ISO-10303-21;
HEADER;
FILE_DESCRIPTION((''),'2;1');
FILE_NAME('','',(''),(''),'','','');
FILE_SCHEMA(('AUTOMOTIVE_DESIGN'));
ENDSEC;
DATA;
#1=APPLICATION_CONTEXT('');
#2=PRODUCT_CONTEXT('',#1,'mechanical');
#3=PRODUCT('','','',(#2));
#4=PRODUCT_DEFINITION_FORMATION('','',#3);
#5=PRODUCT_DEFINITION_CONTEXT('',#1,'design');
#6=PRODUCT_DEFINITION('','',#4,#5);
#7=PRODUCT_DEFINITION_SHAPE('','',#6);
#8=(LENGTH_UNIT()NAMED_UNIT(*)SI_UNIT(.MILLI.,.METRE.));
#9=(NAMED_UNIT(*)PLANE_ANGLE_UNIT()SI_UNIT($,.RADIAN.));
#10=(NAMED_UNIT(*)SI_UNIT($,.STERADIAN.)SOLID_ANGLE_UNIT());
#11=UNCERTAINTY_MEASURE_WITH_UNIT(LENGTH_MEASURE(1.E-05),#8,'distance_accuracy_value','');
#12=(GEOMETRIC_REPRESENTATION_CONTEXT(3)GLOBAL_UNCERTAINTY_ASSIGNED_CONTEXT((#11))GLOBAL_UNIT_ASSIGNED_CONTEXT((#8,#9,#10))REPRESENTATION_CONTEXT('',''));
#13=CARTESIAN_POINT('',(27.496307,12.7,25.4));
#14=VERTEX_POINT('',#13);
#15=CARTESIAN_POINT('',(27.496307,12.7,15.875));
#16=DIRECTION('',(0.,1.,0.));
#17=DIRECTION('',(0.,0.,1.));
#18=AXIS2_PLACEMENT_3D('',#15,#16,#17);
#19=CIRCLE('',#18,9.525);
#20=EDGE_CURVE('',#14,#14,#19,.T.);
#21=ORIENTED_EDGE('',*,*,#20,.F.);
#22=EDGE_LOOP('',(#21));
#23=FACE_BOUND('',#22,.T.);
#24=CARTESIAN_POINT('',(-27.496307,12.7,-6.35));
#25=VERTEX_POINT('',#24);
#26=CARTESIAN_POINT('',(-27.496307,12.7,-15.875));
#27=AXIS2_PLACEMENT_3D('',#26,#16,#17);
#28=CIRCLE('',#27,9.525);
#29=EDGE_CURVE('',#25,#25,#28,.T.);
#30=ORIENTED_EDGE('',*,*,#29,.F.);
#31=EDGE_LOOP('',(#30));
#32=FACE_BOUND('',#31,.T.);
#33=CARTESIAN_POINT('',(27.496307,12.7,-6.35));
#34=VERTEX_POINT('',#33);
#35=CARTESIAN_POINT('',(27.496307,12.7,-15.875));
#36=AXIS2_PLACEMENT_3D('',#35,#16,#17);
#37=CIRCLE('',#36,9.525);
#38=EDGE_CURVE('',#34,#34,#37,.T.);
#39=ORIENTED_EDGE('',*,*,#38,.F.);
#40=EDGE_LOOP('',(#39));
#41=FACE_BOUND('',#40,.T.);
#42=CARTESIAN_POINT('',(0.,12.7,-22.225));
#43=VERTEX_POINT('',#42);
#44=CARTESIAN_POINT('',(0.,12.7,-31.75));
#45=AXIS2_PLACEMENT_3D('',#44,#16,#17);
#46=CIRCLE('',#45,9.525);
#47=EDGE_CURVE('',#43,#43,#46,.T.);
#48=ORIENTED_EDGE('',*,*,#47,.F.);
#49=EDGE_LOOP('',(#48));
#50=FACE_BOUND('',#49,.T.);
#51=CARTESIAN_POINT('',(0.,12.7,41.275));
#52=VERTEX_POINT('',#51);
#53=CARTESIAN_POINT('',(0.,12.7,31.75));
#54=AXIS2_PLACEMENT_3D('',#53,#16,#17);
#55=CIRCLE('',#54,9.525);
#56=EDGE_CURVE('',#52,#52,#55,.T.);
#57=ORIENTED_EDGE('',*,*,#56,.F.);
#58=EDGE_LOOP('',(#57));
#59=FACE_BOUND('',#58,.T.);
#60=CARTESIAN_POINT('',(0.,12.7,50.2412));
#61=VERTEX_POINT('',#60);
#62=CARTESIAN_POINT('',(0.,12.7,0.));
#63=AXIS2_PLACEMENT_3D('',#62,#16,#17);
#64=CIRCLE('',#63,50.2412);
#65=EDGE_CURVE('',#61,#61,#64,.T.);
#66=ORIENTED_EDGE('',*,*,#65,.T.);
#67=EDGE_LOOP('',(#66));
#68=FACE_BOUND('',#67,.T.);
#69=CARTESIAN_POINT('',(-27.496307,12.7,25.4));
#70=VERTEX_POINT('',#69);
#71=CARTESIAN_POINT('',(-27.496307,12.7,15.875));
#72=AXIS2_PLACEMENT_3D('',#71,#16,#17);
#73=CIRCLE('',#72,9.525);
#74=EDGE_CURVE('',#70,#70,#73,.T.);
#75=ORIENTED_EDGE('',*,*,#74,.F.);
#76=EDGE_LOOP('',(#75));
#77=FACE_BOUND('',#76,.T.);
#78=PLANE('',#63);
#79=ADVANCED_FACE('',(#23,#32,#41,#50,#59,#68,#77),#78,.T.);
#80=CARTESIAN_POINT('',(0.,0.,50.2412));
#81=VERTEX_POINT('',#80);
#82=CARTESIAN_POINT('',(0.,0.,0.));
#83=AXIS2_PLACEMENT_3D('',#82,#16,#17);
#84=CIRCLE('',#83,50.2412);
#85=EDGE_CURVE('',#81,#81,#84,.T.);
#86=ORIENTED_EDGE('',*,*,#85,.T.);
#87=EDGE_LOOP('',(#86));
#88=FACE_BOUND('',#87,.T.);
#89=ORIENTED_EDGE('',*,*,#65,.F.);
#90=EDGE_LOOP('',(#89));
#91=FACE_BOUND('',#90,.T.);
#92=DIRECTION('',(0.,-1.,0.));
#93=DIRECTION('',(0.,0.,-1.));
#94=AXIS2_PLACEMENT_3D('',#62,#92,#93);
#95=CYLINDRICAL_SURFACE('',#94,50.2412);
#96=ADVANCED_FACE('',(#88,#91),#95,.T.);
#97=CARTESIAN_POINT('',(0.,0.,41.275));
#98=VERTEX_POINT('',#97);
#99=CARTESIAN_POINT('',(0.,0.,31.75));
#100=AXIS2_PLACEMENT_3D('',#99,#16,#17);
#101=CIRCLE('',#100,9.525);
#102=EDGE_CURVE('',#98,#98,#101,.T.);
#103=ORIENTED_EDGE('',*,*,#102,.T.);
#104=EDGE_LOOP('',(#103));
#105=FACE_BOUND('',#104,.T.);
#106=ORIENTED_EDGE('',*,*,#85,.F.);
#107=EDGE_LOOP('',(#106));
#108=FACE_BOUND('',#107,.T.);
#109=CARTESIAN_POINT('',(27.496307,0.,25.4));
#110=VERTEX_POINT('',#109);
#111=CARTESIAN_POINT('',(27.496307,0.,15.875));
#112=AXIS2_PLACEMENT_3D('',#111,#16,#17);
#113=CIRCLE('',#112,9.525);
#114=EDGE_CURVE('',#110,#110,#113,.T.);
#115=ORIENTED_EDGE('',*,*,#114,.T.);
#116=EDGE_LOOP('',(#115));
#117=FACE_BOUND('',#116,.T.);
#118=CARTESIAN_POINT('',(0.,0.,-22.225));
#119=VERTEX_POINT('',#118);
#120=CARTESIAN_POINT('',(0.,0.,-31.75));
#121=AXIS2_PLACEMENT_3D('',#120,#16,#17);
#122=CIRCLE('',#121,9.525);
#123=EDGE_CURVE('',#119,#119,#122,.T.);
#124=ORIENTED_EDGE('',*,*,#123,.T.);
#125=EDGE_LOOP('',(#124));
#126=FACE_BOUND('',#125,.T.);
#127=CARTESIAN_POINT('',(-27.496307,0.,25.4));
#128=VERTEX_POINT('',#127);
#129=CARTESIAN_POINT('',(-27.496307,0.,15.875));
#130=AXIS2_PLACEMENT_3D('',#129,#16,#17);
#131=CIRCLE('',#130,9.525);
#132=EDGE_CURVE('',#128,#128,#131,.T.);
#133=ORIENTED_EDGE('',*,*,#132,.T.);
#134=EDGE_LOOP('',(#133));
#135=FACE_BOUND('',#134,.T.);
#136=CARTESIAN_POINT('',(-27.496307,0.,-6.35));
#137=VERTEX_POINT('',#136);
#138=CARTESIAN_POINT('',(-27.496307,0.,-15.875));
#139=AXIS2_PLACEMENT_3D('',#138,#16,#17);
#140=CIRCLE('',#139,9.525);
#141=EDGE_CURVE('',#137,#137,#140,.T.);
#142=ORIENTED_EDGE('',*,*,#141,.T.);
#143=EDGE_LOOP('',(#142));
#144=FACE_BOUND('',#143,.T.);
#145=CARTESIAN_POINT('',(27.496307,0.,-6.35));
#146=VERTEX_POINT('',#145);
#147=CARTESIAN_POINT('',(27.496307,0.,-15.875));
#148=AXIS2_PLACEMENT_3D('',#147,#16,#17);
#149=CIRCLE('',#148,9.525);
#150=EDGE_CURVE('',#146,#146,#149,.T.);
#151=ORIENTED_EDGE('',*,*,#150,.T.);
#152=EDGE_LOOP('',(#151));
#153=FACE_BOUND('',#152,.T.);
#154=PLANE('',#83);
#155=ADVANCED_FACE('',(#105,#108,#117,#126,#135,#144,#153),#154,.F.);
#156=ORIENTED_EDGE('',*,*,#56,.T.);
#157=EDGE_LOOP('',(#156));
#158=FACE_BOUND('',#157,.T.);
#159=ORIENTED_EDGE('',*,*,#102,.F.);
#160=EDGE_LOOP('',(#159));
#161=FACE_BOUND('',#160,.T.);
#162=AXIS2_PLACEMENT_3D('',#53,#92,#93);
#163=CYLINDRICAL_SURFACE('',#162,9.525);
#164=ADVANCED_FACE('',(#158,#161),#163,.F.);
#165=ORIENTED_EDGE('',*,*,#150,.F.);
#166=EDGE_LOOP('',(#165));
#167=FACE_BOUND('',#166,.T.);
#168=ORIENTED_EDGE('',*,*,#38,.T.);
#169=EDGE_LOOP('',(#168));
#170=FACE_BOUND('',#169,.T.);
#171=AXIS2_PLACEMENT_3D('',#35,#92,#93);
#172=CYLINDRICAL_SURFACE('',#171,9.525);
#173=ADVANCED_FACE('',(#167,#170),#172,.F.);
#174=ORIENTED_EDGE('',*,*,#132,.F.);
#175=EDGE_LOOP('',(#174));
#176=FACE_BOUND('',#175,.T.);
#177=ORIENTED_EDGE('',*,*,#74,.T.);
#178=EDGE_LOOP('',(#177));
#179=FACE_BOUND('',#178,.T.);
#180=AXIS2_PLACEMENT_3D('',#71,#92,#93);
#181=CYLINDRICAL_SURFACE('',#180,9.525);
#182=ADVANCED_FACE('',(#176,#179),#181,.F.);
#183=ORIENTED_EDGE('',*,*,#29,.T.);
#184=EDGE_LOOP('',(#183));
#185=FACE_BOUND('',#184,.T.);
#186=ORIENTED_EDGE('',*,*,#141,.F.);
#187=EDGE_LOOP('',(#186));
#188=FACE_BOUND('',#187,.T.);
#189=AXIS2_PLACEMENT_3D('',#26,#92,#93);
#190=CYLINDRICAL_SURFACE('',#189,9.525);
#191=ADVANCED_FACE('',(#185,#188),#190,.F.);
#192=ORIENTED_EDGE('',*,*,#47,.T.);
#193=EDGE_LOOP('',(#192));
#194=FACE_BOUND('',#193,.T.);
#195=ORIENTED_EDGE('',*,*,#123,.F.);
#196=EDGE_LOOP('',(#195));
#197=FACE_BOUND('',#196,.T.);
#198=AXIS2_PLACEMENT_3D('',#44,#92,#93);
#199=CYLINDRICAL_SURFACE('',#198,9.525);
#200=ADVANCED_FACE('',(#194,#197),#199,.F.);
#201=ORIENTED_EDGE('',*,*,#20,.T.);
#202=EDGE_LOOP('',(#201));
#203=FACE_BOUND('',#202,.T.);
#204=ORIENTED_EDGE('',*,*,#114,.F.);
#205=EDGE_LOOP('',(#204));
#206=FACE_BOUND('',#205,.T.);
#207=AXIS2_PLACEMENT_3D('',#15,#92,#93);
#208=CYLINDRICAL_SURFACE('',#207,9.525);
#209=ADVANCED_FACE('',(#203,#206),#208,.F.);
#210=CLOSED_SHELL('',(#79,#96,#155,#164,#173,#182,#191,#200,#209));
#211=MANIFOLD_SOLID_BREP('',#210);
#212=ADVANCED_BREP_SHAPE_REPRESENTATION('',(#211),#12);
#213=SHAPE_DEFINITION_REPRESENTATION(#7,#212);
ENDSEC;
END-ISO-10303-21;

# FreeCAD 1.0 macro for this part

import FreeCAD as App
import Part
import Sketcher
from FreeCAD import Vector
Q = App.Units.Quantity

doc = App.newDocument("Part")
body = doc.addObject("PartDesign::Body", "Body")

sketch1 = body.newObject("Sketcher::SketchObject", "Sketch")
sketch1.AttachmentSupport = (doc.getObject("XZ_Plane"), [""])
sketch1.MapMode = "FlatFace"
sketch1.addGeometry([
    Part.Circle(Vector(0, 0, 0), Vector(0, 0, 1), 50.2412),
    Part.Circle(Vector(-27.496307, 15.875, 0), Vector(0, 0, 1), 9.525),
    Part.Circle(Vector(0, 31.75, 0), Vector(0, 0, 1), 9.525),
    Part.Circle(Vector(27.496307, 15.875, 0), Vector(0, 0, 1), 9.525),
    Part.Circle(Vector(-27.496307, -15.875, 0), Vector(0, 0, 1), 9.525),
    Part.Circle(Vector(27.496307, -15.875, 0), Vector(0, 0, 1), 9.525),
    Part.Circle(Vector(0, -31.75, 0), Vector(0, 0, 1), 9.525),
], False)
sketch1.addConstraint([
    Sketcher.Constraint("Coincident", 0, 3, -1, 1),
    Sketcher.Constraint("Equal", 1, 2),
    Sketcher.Constraint("Equal", 2, 3),
    Sketcher.Constraint("Equal", 3, 4),
    Sketcher.Constraint("Equal", 4, 5),
    Sketcher.Constraint("Equal", 5, 6),
    Sketcher.Constraint("Symmetric", 3, 3, 4, 3, -1, 1),
    Sketcher.Constraint("Symmetric", 1, 3, 5, 3, -1, 1),
    Sketcher.Constraint("Symmetric", 2, 3, 6, 3, -1, 1),
    Sketcher.Constraint("Symmetric", 1, 3, 3, 3, -2),
    Sketcher.Constraint("PointOnObject", 2, 3, -2),
    Sketcher.Constraint("Diameter", 1, Q("0.75 in")),
    Sketcher.Constraint("Diameter", 0, Q("3.956 in")),
    Sketcher.Constraint("DistanceY", -1, 1, 2, 3, Q("1.25 in")),
    Sketcher.Constraint("DistanceY", 4, 3, 1, 3, Q("1.25 in")),
    Sketcher.Constraint("DistanceX", 1, 3, -1, 1, Q("27.496307 mm")),
])
pad1 = body.newObject("PartDesign::Pad", "Pad")
pad1.Profile = sketch1
pad1.Length = Q("0.5 in")
pad1.Reversed = True

doc.recompute()
